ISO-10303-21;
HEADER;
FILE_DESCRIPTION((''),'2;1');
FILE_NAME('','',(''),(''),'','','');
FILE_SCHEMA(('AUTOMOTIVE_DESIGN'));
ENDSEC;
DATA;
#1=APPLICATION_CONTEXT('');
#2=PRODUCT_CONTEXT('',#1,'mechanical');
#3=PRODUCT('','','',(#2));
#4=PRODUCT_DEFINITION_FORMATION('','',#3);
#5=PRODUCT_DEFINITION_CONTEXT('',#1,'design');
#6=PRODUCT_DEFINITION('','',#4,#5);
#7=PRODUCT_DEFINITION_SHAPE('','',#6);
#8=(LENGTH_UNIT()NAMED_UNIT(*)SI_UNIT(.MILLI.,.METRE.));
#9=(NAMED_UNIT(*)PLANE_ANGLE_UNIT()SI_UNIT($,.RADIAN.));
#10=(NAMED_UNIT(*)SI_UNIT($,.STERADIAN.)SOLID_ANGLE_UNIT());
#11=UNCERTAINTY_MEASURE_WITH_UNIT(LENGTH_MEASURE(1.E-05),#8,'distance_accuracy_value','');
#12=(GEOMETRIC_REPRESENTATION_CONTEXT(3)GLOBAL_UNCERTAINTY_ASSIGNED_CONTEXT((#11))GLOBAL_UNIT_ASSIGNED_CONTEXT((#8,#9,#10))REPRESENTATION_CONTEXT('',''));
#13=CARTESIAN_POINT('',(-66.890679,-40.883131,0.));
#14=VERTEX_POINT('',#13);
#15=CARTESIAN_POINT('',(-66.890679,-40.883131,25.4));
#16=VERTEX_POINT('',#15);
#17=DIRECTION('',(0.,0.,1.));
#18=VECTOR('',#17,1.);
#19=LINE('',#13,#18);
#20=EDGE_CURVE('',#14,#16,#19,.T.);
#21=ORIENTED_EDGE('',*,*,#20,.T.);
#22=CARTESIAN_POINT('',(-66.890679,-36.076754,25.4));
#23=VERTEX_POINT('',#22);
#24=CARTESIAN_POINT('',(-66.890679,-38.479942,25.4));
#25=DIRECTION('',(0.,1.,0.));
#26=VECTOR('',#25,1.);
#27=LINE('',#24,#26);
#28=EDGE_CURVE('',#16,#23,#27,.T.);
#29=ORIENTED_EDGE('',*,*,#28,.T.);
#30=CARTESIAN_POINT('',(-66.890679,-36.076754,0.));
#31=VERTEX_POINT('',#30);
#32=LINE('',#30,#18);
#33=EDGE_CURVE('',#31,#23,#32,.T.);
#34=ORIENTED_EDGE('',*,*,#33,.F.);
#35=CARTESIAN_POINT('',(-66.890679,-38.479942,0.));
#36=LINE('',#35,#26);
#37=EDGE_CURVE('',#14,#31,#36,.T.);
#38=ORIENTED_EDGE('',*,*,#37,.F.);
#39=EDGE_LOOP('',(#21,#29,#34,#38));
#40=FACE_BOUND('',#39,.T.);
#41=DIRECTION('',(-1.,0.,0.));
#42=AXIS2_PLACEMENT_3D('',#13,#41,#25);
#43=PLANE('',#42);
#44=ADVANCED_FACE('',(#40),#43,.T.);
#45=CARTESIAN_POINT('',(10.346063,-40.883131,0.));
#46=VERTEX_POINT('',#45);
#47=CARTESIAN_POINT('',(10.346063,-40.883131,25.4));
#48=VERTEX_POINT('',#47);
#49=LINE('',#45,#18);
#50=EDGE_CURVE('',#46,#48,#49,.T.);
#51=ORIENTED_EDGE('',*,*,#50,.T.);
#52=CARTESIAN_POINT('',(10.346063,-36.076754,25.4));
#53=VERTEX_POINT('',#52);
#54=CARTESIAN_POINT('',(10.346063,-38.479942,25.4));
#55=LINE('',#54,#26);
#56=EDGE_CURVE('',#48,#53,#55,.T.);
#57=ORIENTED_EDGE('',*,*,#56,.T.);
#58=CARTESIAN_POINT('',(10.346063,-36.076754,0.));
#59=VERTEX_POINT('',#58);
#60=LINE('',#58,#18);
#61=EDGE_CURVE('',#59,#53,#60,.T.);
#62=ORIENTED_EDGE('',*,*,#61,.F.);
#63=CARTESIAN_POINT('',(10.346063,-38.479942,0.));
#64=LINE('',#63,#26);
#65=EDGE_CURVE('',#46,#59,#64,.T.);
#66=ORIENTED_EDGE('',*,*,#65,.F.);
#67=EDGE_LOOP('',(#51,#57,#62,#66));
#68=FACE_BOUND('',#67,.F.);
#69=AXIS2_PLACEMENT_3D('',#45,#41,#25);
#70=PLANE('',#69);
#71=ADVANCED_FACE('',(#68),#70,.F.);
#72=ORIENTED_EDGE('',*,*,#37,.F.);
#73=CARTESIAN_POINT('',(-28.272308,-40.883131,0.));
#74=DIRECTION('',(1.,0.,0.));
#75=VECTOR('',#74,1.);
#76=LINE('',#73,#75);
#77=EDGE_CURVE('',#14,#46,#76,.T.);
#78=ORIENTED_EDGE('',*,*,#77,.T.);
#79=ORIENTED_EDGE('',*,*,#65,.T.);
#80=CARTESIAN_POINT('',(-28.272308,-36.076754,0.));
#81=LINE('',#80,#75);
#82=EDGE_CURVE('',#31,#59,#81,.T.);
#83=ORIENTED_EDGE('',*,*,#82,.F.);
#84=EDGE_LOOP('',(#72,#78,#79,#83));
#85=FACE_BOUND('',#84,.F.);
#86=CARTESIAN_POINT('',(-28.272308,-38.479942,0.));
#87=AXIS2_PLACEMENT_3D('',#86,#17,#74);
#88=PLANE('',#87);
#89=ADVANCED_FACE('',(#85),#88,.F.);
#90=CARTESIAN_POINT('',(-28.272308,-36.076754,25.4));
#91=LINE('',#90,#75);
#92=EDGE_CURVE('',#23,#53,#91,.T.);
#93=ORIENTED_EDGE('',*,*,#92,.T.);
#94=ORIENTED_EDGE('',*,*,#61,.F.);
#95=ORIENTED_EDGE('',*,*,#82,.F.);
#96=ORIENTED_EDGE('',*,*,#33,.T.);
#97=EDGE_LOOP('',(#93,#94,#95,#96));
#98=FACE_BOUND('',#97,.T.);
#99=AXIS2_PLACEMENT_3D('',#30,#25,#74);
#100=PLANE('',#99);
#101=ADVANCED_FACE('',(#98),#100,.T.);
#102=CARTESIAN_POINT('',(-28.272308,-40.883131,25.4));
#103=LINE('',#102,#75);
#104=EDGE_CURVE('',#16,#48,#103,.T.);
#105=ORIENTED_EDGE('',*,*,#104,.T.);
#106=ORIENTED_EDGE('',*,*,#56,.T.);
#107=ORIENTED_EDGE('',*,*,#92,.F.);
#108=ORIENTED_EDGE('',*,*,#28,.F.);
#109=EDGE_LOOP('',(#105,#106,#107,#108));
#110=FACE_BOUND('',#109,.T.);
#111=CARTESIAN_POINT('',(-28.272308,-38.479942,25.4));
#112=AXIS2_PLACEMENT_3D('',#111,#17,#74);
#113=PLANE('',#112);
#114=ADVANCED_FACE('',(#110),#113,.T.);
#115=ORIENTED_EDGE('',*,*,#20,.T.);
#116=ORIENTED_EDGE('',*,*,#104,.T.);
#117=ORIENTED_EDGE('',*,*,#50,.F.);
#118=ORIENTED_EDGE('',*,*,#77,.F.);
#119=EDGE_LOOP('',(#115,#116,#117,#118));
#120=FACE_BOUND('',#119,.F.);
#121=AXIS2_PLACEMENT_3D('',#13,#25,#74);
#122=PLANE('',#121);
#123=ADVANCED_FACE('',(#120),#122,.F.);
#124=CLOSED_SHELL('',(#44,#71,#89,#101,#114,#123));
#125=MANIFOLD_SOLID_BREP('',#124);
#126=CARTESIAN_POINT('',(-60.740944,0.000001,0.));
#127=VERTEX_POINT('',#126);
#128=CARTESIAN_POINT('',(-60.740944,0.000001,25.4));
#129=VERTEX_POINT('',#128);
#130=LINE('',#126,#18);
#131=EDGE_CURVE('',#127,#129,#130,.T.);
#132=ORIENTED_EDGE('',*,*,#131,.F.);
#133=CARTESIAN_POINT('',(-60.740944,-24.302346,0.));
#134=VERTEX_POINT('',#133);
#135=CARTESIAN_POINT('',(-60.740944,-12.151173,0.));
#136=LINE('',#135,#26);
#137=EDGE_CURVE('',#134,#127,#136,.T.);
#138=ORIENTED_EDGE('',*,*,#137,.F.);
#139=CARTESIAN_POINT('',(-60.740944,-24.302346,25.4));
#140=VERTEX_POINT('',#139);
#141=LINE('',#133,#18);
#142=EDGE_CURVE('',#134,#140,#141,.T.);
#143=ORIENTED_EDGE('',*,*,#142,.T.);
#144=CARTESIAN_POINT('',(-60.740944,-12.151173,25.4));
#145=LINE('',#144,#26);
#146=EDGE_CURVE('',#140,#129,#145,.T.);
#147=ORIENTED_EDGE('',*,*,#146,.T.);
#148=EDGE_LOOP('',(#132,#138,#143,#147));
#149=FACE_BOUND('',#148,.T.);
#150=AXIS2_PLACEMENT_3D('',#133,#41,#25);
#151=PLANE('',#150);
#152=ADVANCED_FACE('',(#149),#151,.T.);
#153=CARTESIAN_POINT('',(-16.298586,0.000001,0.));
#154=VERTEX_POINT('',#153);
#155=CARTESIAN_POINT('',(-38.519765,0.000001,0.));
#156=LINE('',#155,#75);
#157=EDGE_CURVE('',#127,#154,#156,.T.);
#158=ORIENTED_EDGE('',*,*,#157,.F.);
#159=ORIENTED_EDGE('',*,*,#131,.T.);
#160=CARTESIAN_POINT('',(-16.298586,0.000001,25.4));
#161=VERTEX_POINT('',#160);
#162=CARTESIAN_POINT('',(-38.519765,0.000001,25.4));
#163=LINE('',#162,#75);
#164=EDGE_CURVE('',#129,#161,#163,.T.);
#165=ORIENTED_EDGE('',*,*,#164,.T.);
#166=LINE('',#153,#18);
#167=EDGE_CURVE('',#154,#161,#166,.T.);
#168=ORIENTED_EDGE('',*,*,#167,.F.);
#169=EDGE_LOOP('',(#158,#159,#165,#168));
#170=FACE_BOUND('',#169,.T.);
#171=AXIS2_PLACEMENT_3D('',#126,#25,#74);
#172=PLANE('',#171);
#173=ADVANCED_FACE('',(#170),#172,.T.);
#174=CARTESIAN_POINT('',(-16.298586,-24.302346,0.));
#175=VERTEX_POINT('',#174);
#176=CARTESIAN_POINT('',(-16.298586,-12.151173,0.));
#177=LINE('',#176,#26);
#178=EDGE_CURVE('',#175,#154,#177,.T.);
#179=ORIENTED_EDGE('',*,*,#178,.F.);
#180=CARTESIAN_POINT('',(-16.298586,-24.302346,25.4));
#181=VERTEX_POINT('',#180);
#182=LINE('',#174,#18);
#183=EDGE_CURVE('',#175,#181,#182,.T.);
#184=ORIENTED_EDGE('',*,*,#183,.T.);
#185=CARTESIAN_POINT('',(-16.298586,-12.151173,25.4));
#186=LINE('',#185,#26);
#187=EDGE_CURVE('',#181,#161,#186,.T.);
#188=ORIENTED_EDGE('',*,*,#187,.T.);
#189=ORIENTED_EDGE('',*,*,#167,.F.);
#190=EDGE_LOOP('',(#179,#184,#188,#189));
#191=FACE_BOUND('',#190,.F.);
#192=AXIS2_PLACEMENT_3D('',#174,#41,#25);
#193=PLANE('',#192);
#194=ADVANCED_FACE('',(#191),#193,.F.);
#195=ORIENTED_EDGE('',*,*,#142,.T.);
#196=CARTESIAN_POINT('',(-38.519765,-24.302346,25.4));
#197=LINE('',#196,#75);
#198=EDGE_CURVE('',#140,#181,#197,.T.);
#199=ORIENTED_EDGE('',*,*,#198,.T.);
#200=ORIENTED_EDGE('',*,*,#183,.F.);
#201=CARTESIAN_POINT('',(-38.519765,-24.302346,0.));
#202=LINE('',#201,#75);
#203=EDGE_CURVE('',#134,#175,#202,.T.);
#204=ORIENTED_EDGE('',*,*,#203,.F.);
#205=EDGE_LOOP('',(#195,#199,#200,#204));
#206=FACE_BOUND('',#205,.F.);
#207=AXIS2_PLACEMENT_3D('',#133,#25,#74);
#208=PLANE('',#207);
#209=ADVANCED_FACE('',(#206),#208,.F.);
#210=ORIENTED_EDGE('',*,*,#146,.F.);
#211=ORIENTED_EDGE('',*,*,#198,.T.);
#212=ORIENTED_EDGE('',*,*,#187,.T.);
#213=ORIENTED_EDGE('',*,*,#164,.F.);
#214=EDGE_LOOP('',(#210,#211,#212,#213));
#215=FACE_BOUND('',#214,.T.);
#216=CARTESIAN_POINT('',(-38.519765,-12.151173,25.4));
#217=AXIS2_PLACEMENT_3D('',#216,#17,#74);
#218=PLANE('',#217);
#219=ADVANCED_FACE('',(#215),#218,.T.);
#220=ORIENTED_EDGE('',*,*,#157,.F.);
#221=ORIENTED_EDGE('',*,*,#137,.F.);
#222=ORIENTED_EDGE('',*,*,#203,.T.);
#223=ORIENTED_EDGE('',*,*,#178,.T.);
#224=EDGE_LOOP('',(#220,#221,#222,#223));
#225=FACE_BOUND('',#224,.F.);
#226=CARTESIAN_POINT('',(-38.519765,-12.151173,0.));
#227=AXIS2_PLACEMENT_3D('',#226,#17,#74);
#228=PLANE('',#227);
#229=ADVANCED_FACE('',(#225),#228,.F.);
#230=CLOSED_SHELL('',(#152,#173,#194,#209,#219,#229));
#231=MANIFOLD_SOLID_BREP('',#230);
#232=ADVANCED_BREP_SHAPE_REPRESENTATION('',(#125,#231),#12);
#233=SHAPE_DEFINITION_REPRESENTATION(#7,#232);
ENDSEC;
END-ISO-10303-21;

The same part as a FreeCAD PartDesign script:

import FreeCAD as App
import Part
import Sketcher
Q = App.Units.Quantity

doc = App.newDocument("Part")
body = doc.addObject("PartDesign::Body", "Body")
body.AllowCompound = True

sketch1 = body.newObject("Sketcher::SketchObject", "Sketch")
sketch1.AttachmentSupport = (doc.getObject("XY_Plane"), [""])
sketch1.MapMode = "FlatFace"
sketch1.addGeometry(Part.LineSegment(App.Vector(-60.7, 0, 0), App.Vector(-60.7, -24.3, 0)), False)
sketch1.addGeometry(Part.LineSegment(App.Vector(-60.7, -24.3, 0), App.Vector(-16.3, -24.3, 0)), False)
sketch1.addGeometry(Part.LineSegment(App.Vector(-16.3, -24.3, 0), App.Vector(-16.3, 0, 0)), False)
sketch1.addGeometry(Part.LineSegment(App.Vector(-16.3, 0, 0), App.Vector(-60.7, 0, 0)), False)
sketch1.addGeometry(Part.LineSegment(App.Vector(-66.9, -36.1, 0), App.Vector(-66.9, -40.9, 0)), False)
sketch1.addGeometry(Part.LineSegment(App.Vector(-66.9, -40.9, 0), App.Vector(10.3, -40.9, 0)), False)
sketch1.addGeometry(Part.LineSegment(App.Vector(10.3, -40.9, 0), App.Vector(10.3, -36.1, 0)), False)
sketch1.addGeometry(Part.LineSegment(App.Vector(10.3, -36.1, 0), App.Vector(-66.9, -36.1, 0)), False)
sketch1.addConstraint(Sketcher.Constraint("Coincident", 0, 2, 1, 1))
sketch1.addConstraint(Sketcher.Constraint("Coincident", 1, 2, 2, 1))
sketch1.addConstraint(Sketcher.Constraint("Coincident", 2, 2, 3, 1))
sketch1.addConstraint(Sketcher.Constraint("Coincident", 3, 2, 0, 1))
sketch1.addConstraint(Sketcher.Constraint("Coincident", 4, 2, 5, 1))
sketch1.addConstraint(Sketcher.Constraint("Coincident", 5, 2, 6, 1))
sketch1.addConstraint(Sketcher.Constraint("Coincident", 6, 2, 7, 1))
sketch1.addConstraint(Sketcher.Constraint("Coincident", 7, 2, 4, 1))
sketch1.addConstraint(Sketcher.Constraint("Vertical", 0))
sketch1.addConstraint(Sketcher.Constraint("Horizontal", 1))
sketch1.addConstraint(Sketcher.Constraint("Vertical", 2))
sketch1.addConstraint(Sketcher.Constraint("Horizontal", 3))
sketch1.addConstraint(Sketcher.Constraint("Vertical", 4))
sketch1.addConstraint(Sketcher.Constraint("Horizontal", 5))
sketch1.addConstraint(Sketcher.Constraint("Vertical", 6))
sketch1.addConstraint(Sketcher.Constraint("Horizontal", 7))
sketch1.addConstraint(Sketcher.Constraint("PointOnObject", 2, 2, -1))
sketch1.addConstraint(Sketcher.Constraint("DistanceX", 1, 1, 1, 2, 44.442359))
sketch1.addConstraint(Sketcher.Constraint("DistanceX", 5, 1, 5, 2, 77.236741))
sketch1.addConstraint(Sketcher.Constraint("DistanceY", 0, 2, 0, 1, 24.302347))
sketch1.addConstraint(Sketcher.Constraint("DistanceY", 4, 2, 4, 1, 4.806377))
sketch1.addConstraint(Sketcher.Constraint("DistanceX", 4, 2, -1, 1, 66.890679))
sketch1.addConstraint(Sketcher.Constraint("DistanceY", 4, 2, -1, 1, 40.883131))
sketch1.addConstraint(Sketcher.Constraint("DistanceX", 1, 2, 5, 2, 26.644648))
pad1 = body.newObject("PartDesign::Pad", "Pad")
pad1.Profile = sketch1
pad1.Length = Q("1 in")

doc.recompute()
